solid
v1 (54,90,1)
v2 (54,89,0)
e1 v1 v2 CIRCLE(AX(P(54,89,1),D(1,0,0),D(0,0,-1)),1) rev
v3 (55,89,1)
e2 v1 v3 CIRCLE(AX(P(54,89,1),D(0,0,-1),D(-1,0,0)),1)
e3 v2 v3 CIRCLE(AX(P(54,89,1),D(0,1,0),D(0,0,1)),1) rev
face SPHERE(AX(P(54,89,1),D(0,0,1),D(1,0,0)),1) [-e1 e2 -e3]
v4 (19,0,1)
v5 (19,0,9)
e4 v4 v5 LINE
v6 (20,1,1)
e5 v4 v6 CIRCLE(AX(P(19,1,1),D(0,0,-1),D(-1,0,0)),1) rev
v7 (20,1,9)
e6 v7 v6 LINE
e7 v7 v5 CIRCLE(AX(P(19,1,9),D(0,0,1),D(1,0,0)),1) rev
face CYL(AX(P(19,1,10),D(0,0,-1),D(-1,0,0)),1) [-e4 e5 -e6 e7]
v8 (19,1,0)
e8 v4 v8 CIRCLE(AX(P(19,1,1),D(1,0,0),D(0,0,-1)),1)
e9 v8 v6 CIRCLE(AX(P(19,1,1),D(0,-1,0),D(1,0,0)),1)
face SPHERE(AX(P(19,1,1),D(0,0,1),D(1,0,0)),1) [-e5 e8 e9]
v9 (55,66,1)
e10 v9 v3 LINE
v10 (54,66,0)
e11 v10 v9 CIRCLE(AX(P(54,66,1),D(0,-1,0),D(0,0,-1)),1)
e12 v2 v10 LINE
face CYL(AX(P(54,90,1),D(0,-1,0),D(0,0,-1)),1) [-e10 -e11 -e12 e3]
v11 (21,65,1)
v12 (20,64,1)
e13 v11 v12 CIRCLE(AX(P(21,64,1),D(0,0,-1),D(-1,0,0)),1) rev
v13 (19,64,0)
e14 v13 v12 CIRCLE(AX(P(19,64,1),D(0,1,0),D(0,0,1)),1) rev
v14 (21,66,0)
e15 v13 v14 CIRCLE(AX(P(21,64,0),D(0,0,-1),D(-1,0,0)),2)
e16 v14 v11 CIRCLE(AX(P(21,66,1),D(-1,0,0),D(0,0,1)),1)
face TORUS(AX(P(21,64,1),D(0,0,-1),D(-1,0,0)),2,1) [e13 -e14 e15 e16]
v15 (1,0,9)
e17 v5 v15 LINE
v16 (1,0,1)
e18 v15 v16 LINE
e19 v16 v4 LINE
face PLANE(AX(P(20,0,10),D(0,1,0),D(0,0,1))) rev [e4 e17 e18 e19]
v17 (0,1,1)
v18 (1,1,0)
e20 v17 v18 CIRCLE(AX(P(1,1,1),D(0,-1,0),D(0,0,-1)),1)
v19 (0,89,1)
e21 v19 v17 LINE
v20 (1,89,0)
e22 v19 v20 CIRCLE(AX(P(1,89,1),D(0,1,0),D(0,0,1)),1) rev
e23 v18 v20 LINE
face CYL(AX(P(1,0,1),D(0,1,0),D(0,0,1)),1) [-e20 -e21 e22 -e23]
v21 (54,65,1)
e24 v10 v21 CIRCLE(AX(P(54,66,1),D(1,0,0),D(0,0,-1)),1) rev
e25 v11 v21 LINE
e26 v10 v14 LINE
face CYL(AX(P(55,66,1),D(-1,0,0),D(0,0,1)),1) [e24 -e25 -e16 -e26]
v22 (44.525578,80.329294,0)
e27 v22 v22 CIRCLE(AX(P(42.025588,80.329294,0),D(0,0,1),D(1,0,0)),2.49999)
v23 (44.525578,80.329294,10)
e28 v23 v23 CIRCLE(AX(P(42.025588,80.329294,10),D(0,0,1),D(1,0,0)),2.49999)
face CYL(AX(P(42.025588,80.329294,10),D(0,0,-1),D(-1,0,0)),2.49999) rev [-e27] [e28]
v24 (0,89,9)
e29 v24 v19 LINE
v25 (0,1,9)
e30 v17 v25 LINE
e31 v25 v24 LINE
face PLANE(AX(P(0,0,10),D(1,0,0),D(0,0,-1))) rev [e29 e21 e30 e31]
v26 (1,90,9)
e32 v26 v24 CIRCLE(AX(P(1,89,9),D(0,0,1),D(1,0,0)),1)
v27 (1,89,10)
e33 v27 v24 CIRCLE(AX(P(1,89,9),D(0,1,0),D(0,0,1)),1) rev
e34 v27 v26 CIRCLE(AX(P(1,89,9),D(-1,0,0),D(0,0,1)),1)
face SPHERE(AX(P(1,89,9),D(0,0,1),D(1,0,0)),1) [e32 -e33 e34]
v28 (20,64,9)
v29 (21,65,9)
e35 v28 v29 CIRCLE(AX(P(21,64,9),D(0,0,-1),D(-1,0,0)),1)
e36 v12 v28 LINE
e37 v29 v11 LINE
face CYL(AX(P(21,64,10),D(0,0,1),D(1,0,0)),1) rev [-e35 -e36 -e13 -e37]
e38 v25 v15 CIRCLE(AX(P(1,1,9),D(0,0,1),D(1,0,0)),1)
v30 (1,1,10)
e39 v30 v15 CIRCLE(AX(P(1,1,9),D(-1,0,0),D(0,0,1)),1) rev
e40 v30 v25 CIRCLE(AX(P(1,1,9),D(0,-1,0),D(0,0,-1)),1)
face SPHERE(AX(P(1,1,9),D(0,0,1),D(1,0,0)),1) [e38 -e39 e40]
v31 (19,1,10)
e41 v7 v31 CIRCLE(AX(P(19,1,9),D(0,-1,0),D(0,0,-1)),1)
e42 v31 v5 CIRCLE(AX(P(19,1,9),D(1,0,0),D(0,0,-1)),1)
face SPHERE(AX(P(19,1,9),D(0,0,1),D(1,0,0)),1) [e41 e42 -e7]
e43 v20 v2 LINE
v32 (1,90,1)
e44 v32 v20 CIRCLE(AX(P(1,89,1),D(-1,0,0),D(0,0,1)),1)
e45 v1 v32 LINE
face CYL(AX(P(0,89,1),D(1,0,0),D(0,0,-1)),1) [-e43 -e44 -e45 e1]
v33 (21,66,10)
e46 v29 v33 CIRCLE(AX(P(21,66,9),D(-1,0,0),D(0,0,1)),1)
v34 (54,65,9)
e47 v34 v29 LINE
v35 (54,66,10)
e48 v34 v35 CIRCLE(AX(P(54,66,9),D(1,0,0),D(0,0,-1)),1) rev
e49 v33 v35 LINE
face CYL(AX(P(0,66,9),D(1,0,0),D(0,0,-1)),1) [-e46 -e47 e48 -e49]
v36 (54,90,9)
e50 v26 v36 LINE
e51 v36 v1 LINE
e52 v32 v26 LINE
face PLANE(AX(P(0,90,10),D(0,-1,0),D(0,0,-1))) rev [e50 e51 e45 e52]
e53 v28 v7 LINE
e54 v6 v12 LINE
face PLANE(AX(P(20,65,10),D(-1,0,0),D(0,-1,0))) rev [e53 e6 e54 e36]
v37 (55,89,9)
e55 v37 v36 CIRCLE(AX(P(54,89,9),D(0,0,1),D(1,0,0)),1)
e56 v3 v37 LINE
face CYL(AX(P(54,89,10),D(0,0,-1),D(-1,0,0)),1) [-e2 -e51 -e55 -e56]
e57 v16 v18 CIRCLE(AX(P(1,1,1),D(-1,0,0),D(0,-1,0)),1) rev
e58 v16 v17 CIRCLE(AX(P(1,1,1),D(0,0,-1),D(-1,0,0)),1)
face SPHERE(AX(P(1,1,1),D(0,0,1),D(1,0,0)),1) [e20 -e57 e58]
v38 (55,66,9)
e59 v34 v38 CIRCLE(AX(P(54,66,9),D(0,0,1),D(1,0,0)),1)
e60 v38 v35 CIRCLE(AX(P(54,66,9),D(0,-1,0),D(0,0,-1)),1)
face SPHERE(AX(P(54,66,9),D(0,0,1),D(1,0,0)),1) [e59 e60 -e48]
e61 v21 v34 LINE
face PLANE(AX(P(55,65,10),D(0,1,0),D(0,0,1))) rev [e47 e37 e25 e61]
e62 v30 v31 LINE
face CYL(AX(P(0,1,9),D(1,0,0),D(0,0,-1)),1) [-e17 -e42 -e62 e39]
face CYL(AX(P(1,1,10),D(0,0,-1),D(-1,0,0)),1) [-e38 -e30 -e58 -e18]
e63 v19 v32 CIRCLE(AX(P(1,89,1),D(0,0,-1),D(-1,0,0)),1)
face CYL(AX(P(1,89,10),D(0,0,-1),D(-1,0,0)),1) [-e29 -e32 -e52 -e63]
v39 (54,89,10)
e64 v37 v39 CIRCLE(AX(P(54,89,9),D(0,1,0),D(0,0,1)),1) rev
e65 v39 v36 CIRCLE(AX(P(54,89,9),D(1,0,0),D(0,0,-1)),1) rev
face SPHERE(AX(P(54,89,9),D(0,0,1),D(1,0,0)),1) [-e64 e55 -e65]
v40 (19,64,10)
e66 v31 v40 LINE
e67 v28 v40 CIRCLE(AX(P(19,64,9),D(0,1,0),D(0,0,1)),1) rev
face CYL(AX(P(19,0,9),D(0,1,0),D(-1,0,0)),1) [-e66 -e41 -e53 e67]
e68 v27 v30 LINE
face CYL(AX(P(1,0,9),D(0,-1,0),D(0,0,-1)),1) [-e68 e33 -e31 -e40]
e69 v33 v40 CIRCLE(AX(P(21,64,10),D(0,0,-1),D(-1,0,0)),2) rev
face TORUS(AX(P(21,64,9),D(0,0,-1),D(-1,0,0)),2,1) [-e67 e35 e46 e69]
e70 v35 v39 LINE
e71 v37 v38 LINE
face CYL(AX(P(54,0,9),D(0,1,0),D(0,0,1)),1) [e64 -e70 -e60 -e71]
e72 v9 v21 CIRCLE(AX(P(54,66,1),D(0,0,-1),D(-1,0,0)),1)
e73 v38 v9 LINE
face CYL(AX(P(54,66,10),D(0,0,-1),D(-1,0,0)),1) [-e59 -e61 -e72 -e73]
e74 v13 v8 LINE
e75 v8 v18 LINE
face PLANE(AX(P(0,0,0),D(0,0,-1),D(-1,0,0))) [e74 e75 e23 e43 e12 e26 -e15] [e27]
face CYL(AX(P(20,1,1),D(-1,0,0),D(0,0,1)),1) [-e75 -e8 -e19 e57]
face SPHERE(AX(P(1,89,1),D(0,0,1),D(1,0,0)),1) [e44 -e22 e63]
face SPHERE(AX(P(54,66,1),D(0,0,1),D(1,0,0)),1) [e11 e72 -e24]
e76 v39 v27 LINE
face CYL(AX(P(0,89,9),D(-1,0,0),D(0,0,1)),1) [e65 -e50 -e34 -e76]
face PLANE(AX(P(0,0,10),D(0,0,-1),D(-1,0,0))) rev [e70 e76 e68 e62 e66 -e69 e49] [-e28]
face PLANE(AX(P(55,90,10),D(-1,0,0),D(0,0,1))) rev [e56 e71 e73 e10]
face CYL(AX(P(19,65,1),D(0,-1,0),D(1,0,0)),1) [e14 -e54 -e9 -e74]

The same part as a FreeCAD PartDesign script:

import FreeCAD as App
import Part
import Sketcher

V = App.Vector


def edges_at(feature, points):
    """Names of the edges that pass closest to the given points."""
    edges = feature.Shape.Edges
    near = lambda p: min(range(len(edges)), key=lambda i: edges[i].distToShape(Part.Vertex(*p))[0])
    return sorted({f"Edge{near(p) + 1}" for p in points})


def add_polygon(sketch, points):
    """Adds a closed chain of lines whose ends are joined by coincident constraints."""
    first, n = sketch.GeometryCount, len(points)
    for a, b in zip(points, points[1:] + points[:1]):
        sketch.addGeometry(Part.LineSegment(App.Vector(*a, 0), App.Vector(*b, 0)), False)
    for i in range(n):
        sketch.addConstraint(Sketcher.Constraint("Coincident", first + i, 2, first + (i + 1) % n, 1))

doc = App.newDocument("Part")
params = doc.addObject("Spreadsheet::Sheet", "Params")
for row, (alias, value) in enumerate([
    ("sketch1_width", "20 mm"),
    ("sketch1_width2", "35 mm"),
    ("sketch1_height", "90 mm"),
    ("sketch1_height2", "65 mm"),
    ("pad1_length", "10 mm"),
    ("fillet_radius", "1 mm"),
], start=1):
    params.set(f"A{row}", alias)
    params.set(f"B{row}", "=" + value)
    params.setAlias(f"B{row}", alias)

body = doc.addObject("PartDesign::Body", "Body")

sketch1 = body.newObject("Sketcher::SketchObject", "Sketch")
sketch1.AttachmentSupport = (doc.getObject("XY_Plane"), [""])
sketch1.MapMode = "FlatFace"
add_polygon(sketch1, [(0, 90), (0, 0), (20, 0), (20, 65), (55, 65), (55, 90)])
sketch1.addGeometry(Part.Circle(V(42, 80.3, 0), V(0, 0, 1), 2.5), False)
sketch1.addConstraint([
    Sketcher.Constraint("Vertical", 0),
    Sketcher.Constraint("Horizontal", 1),
    Sketcher.Constraint("Vertical", 2),
    Sketcher.Constraint("Horizontal", 3),
    Sketcher.Constraint("Vertical", 4),
    Sketcher.Constraint("Horizontal", 5),
    Sketcher.Constraint("Coincident", 0, 2, -1, 1),
    Sketcher.Constraint("DistanceX", 1, 1, 1, 2, 20.0),
    Sketcher.Constraint("DistanceX", 3, 1, 3, 2, 35.0),
    Sketcher.Constraint("DistanceY", 0, 2, 0, 1, 90.0),
    Sketcher.Constraint("DistanceY", 2, 1, 2, 2, 65.0),
    Sketcher.Constraint("Diameter", 6, 4.99998),
    Sketcher.Constraint("DistanceX", -1, 1, 6, 3, 42.025588),
    Sketcher.Constraint("DistanceY", -1, 1, 6, 3, 80.329294),
])
sketch1.setExpression("Constraints[13]", "Params.sketch1_width")
sketch1.setExpression("Constraints[14]", "Params.sketch1_width2")
sketch1.setExpression("Constraints[15]", "Params.sketch1_height")
sketch1.setExpression("Constraints[16]", "Params.sketch1_height2")
pad1 = body.newObject("PartDesign::Pad", "Pad")
pad1.Profile = sketch1
pad1.setExpression("Length", "Params.pad1_length")
doc.recompute()

fillet = body.newObject("PartDesign::Fillet", "Fillet")
fillet.Base = (pad1, edges_at(pad1, [
    (0, 0, 5),
    (0, 90, 5),
    (55, 90, 5),
    (55, 65, 5),
    (20, 65, 5),
    (20, 0, 5),
    (37.5, 65, 10),
    (55, 77.5, 10),
    (27.5, 90, 10),
    (0, 45, 10),
    (10, 0, 10),
    (0, 45, 0),
    (27.5, 90, 0),
    (55, 77.5, 0),
    (37.5, 65, 0),
    (20, 32.5, 0),
    (10, 0, 0),
    (20, 32.5, 10),
]))
fillet.setExpression("Radius", "Params.fillet_radius")

doc.recompute()
